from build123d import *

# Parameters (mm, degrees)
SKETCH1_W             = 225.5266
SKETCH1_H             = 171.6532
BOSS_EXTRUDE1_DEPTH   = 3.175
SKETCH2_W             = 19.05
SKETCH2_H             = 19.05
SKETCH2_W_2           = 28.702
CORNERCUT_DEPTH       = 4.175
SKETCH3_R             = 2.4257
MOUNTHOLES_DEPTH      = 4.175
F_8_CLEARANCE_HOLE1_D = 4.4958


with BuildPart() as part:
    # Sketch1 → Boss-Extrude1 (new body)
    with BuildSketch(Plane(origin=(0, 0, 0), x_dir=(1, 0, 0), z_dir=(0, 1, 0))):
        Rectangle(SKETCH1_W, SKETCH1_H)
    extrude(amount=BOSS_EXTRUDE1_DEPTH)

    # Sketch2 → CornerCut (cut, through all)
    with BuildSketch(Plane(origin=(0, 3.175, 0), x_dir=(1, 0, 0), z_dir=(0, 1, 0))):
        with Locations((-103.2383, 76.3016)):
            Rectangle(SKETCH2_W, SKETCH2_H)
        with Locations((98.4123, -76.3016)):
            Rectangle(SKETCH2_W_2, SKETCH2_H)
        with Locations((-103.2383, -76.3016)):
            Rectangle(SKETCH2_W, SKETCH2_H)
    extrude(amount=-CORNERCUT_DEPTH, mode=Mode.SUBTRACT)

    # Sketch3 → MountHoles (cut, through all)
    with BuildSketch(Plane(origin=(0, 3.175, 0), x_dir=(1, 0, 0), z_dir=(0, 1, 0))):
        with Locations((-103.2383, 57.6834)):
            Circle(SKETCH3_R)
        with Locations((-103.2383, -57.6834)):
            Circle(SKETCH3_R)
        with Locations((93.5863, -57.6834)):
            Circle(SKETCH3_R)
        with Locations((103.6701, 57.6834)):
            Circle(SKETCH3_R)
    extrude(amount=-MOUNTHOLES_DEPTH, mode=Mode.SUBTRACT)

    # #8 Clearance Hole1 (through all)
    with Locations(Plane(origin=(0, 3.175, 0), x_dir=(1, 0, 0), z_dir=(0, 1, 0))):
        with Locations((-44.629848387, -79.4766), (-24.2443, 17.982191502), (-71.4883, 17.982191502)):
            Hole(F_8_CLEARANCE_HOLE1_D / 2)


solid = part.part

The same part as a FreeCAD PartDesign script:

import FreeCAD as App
import Part
import Sketcher
Q = App.Units.Quantity


def add_polygon(sketch, points):
    """Adds a closed chain of lines whose ends are joined by coincident constraints."""
    first, n = sketch.GeometryCount, len(points)
    for a, b in zip(points, points[1:] + points[:1]):
        sketch.addGeometry(Part.LineSegment(App.Vector(*a, 0), App.Vector(*b, 0)), False)
    for i in range(n):
        sketch.addConstraint(Sketcher.Constraint("Coincident", first + i, 2, first + (i + 1) % n, 1))

doc = App.newDocument("Part")
body = doc.addObject("PartDesign::Body", "Body")

# Sketch on XZ plane
sketch1 = body.newObject("Sketcher::SketchObject", "Sketch")
sketch1.AttachmentSupport = (doc.getObject("XZ_Plane"), [""])
sketch1.MapMode = "FlatFace"
add_polygon(sketch1, [(-112.7633, -85.8266), (-112.7633, 85.8266), (112.7633, 85.8266), (112.7633, -85.8266)])  # lines 0-3
sketch1.addConstraint(Sketcher.Constraint("Vertical", 0))
sketch1.addConstraint(Sketcher.Constraint("Horizontal", 1))
sketch1.addConstraint(Sketcher.Constraint("Vertical", 2))
sketch1.addConstraint(Sketcher.Constraint("Horizontal", 3))
sketch1.addConstraint(Sketcher.Constraint("Symmetric", 0, 2, 2, 2, -1, 1))
sketch1.addConstraint(Sketcher.Constraint("DistanceX", 1, 1, 1, 2, Q("8.879 in")))
sketch1.addConstraint(Sketcher.Constraint("DistanceY", 0, 1, 0, 2, Q("6.758 in")))
pad1 = body.newObject("PartDesign::Pad", "Pad")
pad1.Profile = sketch1
pad1.Length = Q("0.125 in")
pad1.Reversed = True

# Sketch on XZ plane
sketch2 = body.newObject("Sketcher::SketchObject", "Sketch001")
sketch2.AttachmentSupport = (doc.getObject("XZ_Plane"), [""])
sketch2.MapMode = "FlatFace"
sketch2.AttachmentOffset = App.Placement(App.Vector(0, 0, -0.125 * 25.4), App.Rotation())
add_polygon(sketch2, [(-112.7633, -85.8266), (-112.7633, -66.7766), (-93.7133, -66.7766), (-93.7133, -85.8266)])  # lines 0-3
add_polygon(sketch2, [(84.0613, 66.7766), (84.0613, 85.8266), (112.7633, 85.8266), (112.7633, 66.7766)])  # lines 4-7
add_polygon(sketch2, [(-112.7633, 66.7766), (-112.7633, 85.8266), (-93.7133, 85.8266), (-93.7133, 66.7766)])  # lines 8-11
sketch2.addConstraint(Sketcher.Constraint("Vertical", 0))
sketch2.addConstraint(Sketcher.Constraint("Horizontal", 1))
sketch2.addConstraint(Sketcher.Constraint("Vertical", 2))
sketch2.addConstraint(Sketcher.Constraint("Horizontal", 3))
sketch2.addConstraint(Sketcher.Constraint("Vertical", 4))
sketch2.addConstraint(Sketcher.Constraint("Horizontal", 5))
sketch2.addConstraint(Sketcher.Constraint("Vertical", 6))
sketch2.addConstraint(Sketcher.Constraint("Horizontal", 7))
sketch2.addConstraint(Sketcher.Constraint("Vertical", 8))
sketch2.addConstraint(Sketcher.Constraint("Horizontal", 9))
sketch2.addConstraint(Sketcher.Constraint("Vertical", 10))
sketch2.addConstraint(Sketcher.Constraint("Horizontal", 11))
sketch2.addConstraint(Sketcher.Constraint("Symmetric", 3, 2, 5, 2, -1, 1))
sketch2.addConstraint(Sketcher.Constraint("Symmetric", 5, 2, 8, 2, -2))
sketch2.addConstraint(Sketcher.Constraint("Symmetric", 1, 2, 10, 2, -1))
sketch2.addConstraint(Sketcher.Constraint("Horizontal", 7, 2, 10, 2))
sketch2.addConstraint(Sketcher.Constraint("Equal", 11, 0))
sketch2.addConstraint(Sketcher.Constraint("DistanceX", 1, 1, 1, 2, Q("0.75 in")))
sketch2.addConstraint(Sketcher.Constraint("DistanceX", 5, 1, 5, 2, Q("1.13 in")))
sketch2.addConstraint(Sketcher.Constraint("DistanceY", 0, 2, -1, 1, Q("2.629 in")))
sketch2.addConstraint(Sketcher.Constraint("DistanceX", 1, 2, 4, 2, Q("6.999 in")))
pocket1 = body.newObject("PartDesign::Pocket", "Pocket")
pocket1.Profile = sketch2
pocket1.Type = "ThroughAll"
pocket1.Reversed = True

# Sketch on XZ plane
sketch3 = body.newObject("Sketcher::SketchObject", "Sketch002")
sketch3.AttachmentSupport = (doc.getObject("XZ_Plane"), [""])
sketch3.MapMode = "FlatFace"
sketch3.AttachmentOffset = App.Placement(App.Vector(0, 0, -0.125 * 25.4), App.Rotation())
sketch3.addGeometry(Part.Circle(App.Vector(-103.2383, -57.6834, 0), App.Vector(0, 0, 1), 2.4257), False)
sketch3.addGeometry(Part.Circle(App.Vector(-103.2383, 57.6834, 0), App.Vector(0, 0, 1), 2.4257), False)
sketch3.addGeometry(Part.Circle(App.Vector(93.5863, 57.6834, 0), App.Vector(0, 0, 1), 2.4257), False)
sketch3.addGeometry(Part.Circle(App.Vector(103.6701, -57.6834, 0), App.Vector(0, 0, 1), 2.4257), False)
sketch3.addConstraint(Sketcher.Constraint("Equal", 0, 1))
sketch3.addConstraint(Sketcher.Constraint("Equal", 1, 2))
sketch3.addConstraint(Sketcher.Constraint("Equal", 2, 3))
sketch3.addConstraint(Sketcher.Constraint("Symmetric", 0, 3, 1, 3, -1))
sketch3.addConstraint(Sketcher.Constraint("Horizontal", 1, 3, 2, 3))
sketch3.addConstraint(Sketcher.Constraint("Horizontal", 0, 3, 3, 3))
sketch3.addConstraint(Sketcher.Constraint("Diameter", 0, Q("0.191 in")))
sketch3.addConstraint(Sketcher.Constraint("DistanceY", 0, 3, -1, 1, Q("2.271 in")))
sketch3.addConstraint(Sketcher.Constraint("DistanceX", 1, 3, 2, 3, Q("7.749 in")))
sketch3.addConstraint(Sketcher.Constraint("DistanceX", 2, 3, 3, 3, Q("0.397 in")))
sketch3.addConstraint(Sketcher.Constraint("DistanceX", 0, 3, -1, 1, Q("4.0645 in")))
pocket2 = body.newObject("PartDesign::Pocket", "Pocket001")
pocket2.Profile = sketch3
pocket2.Type = "ThroughAll"
pocket2.Reversed = True

# Sketch on XZ plane
sketch4 = body.newObject("Sketcher::SketchObject", "Sketch003")
sketch4.AttachmentSupport = (doc.getObject("XZ_Plane"), [""])
sketch4.MapMode = "FlatFace"
sketch4.AttachmentOffset = App.Placement(App.Vector(0, 0, -0.125 * 25.4), App.Rotation())
sketch4.addGeometry(Part.Circle(App.Vector(-44.629848, 79.4766, 0), App.Vector(0, 0, 1), 2.2479), False)
sketch4.addGeometry(Part.Circle(App.Vector(-24.2443, -17.982192, 0), App.Vector(0, 0, 1), 2.2479), False)
sketch4.addGeometry(Part.Circle(App.Vector(-71.4883, -17.982192, 0), App.Vector(0, 0, 1), 2.2479), False)
sketch4.addConstraint(Sketcher.Constraint("Equal", 0, 1))
sketch4.addConstraint(Sketcher.Constraint("Equal", 1, 2))
sketch4.addConstraint(Sketcher.Constraint("Horizontal", 1, 3, 2, 3))
sketch4.addConstraint(Sketcher.Constraint("Diameter", 0, Q("0.177 in")))
sketch4.addConstraint(Sketcher.Constraint("DistanceX", 2, 3, 1, 3, Q("1.86 in")))
sketch4.addConstraint(Sketcher.Constraint("DistanceY", -1, 1, 0, 3, Q("3.129 in")))
sketch4.addConstraint(Sketcher.Constraint("DistanceX", 1, 3, -1, 1, Q("0.9545 in")))
sketch4.addConstraint(Sketcher.Constraint("DistanceX", 0, 3, -1, 1, Q("44.629848 mm")))
sketch4.addConstraint(Sketcher.Constraint("DistanceY", 1, 3, -1, 1, Q("17.982192 mm")))
doc.recompute()
hole = body.newObject("PartDesign::Hole", "Hole")
hole.Profile = sketch4
hole.ThreadType = "None"
hole.Diameter = Q("0.177 in")
hole.DepthType = "ThroughAll"
hole.Reversed = True

doc.recompute()
